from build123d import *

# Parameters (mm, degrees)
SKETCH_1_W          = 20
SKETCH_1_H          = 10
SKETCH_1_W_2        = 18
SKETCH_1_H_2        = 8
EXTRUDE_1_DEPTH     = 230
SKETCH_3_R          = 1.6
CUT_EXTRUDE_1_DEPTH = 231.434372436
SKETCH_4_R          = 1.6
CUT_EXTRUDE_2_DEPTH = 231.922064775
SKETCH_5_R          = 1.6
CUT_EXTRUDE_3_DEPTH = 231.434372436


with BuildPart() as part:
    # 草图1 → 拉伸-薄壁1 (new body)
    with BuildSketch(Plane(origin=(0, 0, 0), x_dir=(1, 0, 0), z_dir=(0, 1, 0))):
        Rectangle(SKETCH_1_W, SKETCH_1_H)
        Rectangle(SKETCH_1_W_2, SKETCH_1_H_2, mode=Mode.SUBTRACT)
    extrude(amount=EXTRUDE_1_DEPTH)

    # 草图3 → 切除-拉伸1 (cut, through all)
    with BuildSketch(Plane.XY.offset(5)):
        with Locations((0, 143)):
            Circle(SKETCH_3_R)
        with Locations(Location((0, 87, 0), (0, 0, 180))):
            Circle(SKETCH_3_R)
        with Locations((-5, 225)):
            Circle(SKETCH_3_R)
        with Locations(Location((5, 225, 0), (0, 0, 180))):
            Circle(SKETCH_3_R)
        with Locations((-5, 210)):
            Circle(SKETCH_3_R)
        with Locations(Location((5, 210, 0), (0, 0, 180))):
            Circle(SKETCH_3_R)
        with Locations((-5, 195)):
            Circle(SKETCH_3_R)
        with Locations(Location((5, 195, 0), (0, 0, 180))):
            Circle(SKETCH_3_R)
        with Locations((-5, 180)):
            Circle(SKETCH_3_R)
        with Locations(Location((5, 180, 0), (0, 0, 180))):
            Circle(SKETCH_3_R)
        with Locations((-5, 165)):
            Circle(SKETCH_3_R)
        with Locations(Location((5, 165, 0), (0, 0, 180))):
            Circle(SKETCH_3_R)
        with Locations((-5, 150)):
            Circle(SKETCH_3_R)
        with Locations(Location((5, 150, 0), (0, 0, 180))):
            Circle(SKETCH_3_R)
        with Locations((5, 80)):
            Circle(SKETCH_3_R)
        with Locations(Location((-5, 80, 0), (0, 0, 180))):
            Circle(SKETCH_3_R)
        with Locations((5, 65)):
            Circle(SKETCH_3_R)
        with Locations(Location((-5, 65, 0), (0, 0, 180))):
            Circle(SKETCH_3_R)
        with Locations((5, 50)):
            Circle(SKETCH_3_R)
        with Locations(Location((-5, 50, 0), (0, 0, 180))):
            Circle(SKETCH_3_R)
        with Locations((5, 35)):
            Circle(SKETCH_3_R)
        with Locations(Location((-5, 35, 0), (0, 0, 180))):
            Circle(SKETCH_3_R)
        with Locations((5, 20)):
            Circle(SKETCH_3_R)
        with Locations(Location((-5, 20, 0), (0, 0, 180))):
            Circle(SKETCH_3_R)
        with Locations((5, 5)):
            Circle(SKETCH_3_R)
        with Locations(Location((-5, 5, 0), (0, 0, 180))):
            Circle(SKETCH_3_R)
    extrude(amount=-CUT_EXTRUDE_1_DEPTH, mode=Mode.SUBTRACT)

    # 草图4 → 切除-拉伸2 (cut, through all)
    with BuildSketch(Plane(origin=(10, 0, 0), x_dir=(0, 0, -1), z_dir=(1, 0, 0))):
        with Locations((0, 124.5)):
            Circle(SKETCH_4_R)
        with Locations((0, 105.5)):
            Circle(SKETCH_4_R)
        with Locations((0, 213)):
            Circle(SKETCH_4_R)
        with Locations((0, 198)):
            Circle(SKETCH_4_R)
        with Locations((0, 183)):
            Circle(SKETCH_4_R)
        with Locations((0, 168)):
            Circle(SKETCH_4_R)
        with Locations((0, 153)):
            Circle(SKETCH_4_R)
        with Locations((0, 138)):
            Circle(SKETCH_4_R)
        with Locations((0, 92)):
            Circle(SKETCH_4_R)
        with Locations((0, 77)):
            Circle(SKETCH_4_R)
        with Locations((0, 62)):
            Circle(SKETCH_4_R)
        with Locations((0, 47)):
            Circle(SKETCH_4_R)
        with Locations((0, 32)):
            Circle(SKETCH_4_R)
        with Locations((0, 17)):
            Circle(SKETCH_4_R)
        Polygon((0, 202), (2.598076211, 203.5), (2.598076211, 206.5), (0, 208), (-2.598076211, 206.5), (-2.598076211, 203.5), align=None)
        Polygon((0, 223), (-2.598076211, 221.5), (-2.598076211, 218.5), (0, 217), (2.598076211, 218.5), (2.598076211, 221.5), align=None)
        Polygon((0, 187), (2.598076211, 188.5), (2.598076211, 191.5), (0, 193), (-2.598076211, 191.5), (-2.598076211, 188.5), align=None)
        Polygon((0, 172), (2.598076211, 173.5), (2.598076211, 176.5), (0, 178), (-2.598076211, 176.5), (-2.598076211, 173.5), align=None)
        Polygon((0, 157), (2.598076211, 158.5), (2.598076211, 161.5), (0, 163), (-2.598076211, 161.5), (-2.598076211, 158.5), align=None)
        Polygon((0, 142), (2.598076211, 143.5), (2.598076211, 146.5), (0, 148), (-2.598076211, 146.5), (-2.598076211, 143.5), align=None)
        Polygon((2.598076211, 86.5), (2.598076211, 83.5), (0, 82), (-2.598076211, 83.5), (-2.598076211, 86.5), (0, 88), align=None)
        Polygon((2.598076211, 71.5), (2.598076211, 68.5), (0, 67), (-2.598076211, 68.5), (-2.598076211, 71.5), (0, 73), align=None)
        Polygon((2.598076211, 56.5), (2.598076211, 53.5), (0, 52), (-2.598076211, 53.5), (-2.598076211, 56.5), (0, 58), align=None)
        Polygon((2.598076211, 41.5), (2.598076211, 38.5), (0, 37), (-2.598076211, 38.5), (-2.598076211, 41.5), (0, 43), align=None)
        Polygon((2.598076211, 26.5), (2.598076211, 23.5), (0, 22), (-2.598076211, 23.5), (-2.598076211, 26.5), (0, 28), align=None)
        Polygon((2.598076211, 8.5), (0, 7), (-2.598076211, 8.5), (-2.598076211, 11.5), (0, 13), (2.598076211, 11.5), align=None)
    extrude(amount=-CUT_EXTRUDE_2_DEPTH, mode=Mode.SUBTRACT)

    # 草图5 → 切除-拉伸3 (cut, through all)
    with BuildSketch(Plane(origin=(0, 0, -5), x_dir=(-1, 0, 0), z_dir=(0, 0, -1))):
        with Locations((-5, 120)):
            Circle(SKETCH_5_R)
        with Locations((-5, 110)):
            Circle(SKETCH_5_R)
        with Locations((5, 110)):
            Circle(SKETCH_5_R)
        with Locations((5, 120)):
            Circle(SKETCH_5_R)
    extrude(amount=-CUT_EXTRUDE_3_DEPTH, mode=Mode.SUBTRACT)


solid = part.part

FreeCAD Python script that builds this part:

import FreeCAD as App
import Part
import Sketcher

V = App.Vector
Q = App.Units.Quantity

doc = App.newDocument("Part")
body = doc.addObject("PartDesign::Body", "Body")

# Sketch on XZ plane
sketch1 = doc.addObject("Sketcher::SketchObject", "Sketch")
body.addObject(sketch1)
sketch1.AttachmentSupport = (doc.XZ_Plane, [""])
sketch1.MapMode = "FlatFace"
sketch1.addGeometry(Part.LineSegment(V(-10, -5, 0), V(-10, 5, 0)), False)
sketch1.addGeometry(Part.LineSegment(V(-10, 5, 0), V(10, 5, 0)), False)
sketch1.addGeometry(Part.LineSegment(V(10, 5, 0), V(10, -5, 0)), False)
sketch1.addGeometry(Part.LineSegment(V(10, -5, 0), V(-10, -5, 0)), False)
sketch1.addGeometry(Part.LineSegment(V(9, 4, 0), V(-9, 4, 0)), False)
sketch1.addGeometry(Part.LineSegment(V(-9, 4, 0), V(-9, -4, 0)), False)
sketch1.addGeometry(Part.LineSegment(V(-9, -4, 0), V(9, -4, 0)), False)
sketch1.addGeometry(Part.LineSegment(V(9, -4, 0), V(9, 4, 0)), False)
sketch1.addConstraint(Sketcher.Constraint("Coincident", 0, 2, 1, 1))
sketch1.addConstraint(Sketcher.Constraint("Coincident", 1, 2, 2, 1))
sketch1.addConstraint(Sketcher.Constraint("Coincident", 2, 2, 3, 1))
sketch1.addConstraint(Sketcher.Constraint("Coincident", 3, 2, 0, 1))
sketch1.addConstraint(Sketcher.Constraint("Coincident", 4, 2, 5, 1))
sketch1.addConstraint(Sketcher.Constraint("Coincident", 5, 2, 6, 1))
sketch1.addConstraint(Sketcher.Constraint("Coincident", 6, 2, 7, 1))
sketch1.addConstraint(Sketcher.Constraint("Coincident", 7, 2, 4, 1))
sketch1.addConstraint(Sketcher.Constraint("Vertical", 0))
sketch1.addConstraint(Sketcher.Constraint("Horizontal", 1))
sketch1.addConstraint(Sketcher.Constraint("Vertical", 2))
sketch1.addConstraint(Sketcher.Constraint("Horizontal", 3))
sketch1.addConstraint(Sketcher.Constraint("Horizontal", 4))
sketch1.addConstraint(Sketcher.Constraint("Vertical", 5))
sketch1.addConstraint(Sketcher.Constraint("Horizontal", 6))
sketch1.addConstraint(Sketcher.Constraint("Vertical", 7))
sketch1.addConstraint(Sketcher.Constraint("Symmetric", 0, 2, 2, 2, -1, 1))
sketch1.addConstraint(Sketcher.Constraint("Symmetric", 4, 2, 6, 2, -1, 1))
sketch1.addConstraint(Sketcher.Constraint("DistanceX", 1, 1, 1, 2, 20.0))
sketch1.addConstraint(Sketcher.Constraint("DistanceX", 4, 2, 4, 1, 18.0))
sketch1.addConstraint(Sketcher.Constraint("DistanceY", 0, 1, 0, 2, 10.0))
sketch1.addConstraint(Sketcher.Constraint("DistanceY", 5, 2, 5, 1, 8.0))
pad1 = doc.addObject("PartDesign::Pad", "Pad")
body.addObject(pad1)
pad1.Profile = sketch1
pad1.Length = 230
pad1.Reversed = True

# Sketch on XY plane
sketch2 = doc.addObject("Sketcher::SketchObject", "Sketch001")
body.addObject(sketch2)
sketch2.AttachmentSupport = (doc.XY_Plane, [""])
sketch2.MapMode = "FlatFace"
sketch2.AttachmentOffset = App.Placement(V(0, 0, 5), App.Rotation())
sketch2.addGeometry(Part.Circle(V(0, 143, 0), V(0, 0, 1), 1.6), False)
sketch2.addGeometry(Part.Circle(V(0, 87, 0), V(0, 0, 1), 1.6), False)
sketch2.addGeometry(Part.Circle(V(-5, 225, 0), V(0, 0, 1), 1.6), False)
sketch2.addGeometry(Part.Circle(V(5, 225, 0), V(0, 0, 1), 1.6), False)
sketch2.addGeometry(Part.Circle(V(-5, 210, 0), V(0, 0, 1), 1.6), False)
sketch2.addGeometry(Part.Circle(V(5, 210, 0), V(0, 0, 1), 1.6), False)
sketch2.addGeometry(Part.Circle(V(-5, 195, 0), V(0, 0, 1), 1.6), False)
sketch2.addGeometry(Part.Circle(V(5, 195, 0), V(0, 0, 1), 1.6), False)
sketch2.addGeometry(Part.Circle(V(-5, 180, 0), V(0, 0, 1), 1.6), False)
sketch2.addGeometry(Part.Circle(V(5, 180, 0), V(0, 0, 1), 1.6), False)
sketch2.addGeometry(Part.Circle(V(-5, 165, 0), V(0, 0, 1), 1.6), False)
sketch2.addGeometry(Part.Circle(V(5, 165, 0), V(0, 0, 1), 1.6), False)
sketch2.addGeometry(Part.Circle(V(-5, 150, 0), V(0, 0, 1), 1.6), False)
sketch2.addGeometry(Part.Circle(V(5, 150, 0), V(0, 0, 1), 1.6), False)
sketch2.addGeometry(Part.Circle(V(5, 80, 0), V(0, 0, 1), 1.6), False)
sketch2.addGeometry(Part.Circle(V(-5, 80, 0), V(0, 0, 1), 1.6), False)
sketch2.addGeometry(Part.Circle(V(5, 65, 0), V(0, 0, 1), 1.6), False)
sketch2.addGeometry(Part.Circle(V(-5, 65, 0), V(0, 0, 1), 1.6), False)
sketch2.addGeometry(Part.Circle(V(5, 50, 0), V(0, 0, 1), 1.6), False)
sketch2.addGeometry(Part.Circle(V(-5, 50, 0), V(0, 0, 1), 1.6), False)
sketch2.addGeometry(Part.Circle(V(5, 35, 0), V(0, 0, 1), 1.6), False)
sketch2.addGeometry(Part.Circle(V(-5, 35, 0), V(0, 0, 1), 1.6), False)
sketch2.addGeometry(Part.Circle(V(5, 20, 0), V(0, 0, 1), 1.6), False)
sketch2.addGeometry(Part.Circle(V(-5, 20, 0), V(0, 0, 1), 1.6), False)
sketch2.addGeometry(Part.Circle(V(5, 5, 0), V(0, 0, 1), 1.6), False)
sketch2.addGeometry(Part.Circle(V(-5, 5, 0), V(0, 0, 1), 1.6), False)
sketch2.addConstraint(Sketcher.Constraint("Equal", 0, 1))
sketch2.addConstraint(Sketcher.Constraint("Equal", 1, 2))
sketch2.addConstraint(Sketcher.Constraint("Equal", 2, 3))
sketch2.addConstraint(Sketcher.Constraint("Equal", 3, 4))
sketch2.addConstraint(Sketcher.Constraint("Equal", 4, 5))
sketch2.addConstraint(Sketcher.Constraint("Equal", 5, 6))
sketch2.addConstraint(Sketcher.Constraint("Equal", 6, 7))
sketch2.addConstraint(Sketcher.Constraint("Equal", 7, 8))
sketch2.addConstraint(Sketcher.Constraint("Equal", 8, 9))
sketch2.addConstraint(Sketcher.Constraint("Equal", 9, 10))
sketch2.addConstraint(Sketcher.Constraint("Equal", 10, 11))
sketch2.addConstraint(Sketcher.Constraint("Equal", 11, 12))
sketch2.addConstraint(Sketcher.Constraint("Equal", 12, 13))
sketch2.addConstraint(Sketcher.Constraint("Equal", 13, 14))
sketch2.addConstraint(Sketcher.Constraint("Equal", 14, 15))
sketch2.addConstraint(Sketcher.Constraint("Equal", 15, 16))
sketch2.addConstraint(Sketcher.Constraint("Equal", 16, 17))
sketch2.addConstraint(Sketcher.Constraint("Equal", 17, 18))
sketch2.addConstraint(Sketcher.Constraint("Equal", 18, 19))
sketch2.addConstraint(Sketcher.Constraint("Equal", 19, 20))
sketch2.addConstraint(Sketcher.Constraint("Equal", 20, 21))
sketch2.addConstraint(Sketcher.Constraint("Equal", 21, 22))
sketch2.addConstraint(Sketcher.Constraint("Equal", 22, 23))
sketch2.addConstraint(Sketcher.Constraint("Equal", 23, 24))
sketch2.addConstraint(Sketcher.Constraint("Equal", 24, 25))
sketch2.addConstraint(Sketcher.Constraint("Symmetric", 2, 3, 3, 3, -2))
sketch2.addConstraint(Sketcher.Constraint("Symmetric", 4, 3, 5, 3, -2))
sketch2.addConstraint(Sketcher.Constraint("Symmetric", 6, 3, 7, 3, -2))
sketch2.addConstraint(Sketcher.Constraint("Symmetric", 8, 3, 9, 3, -2))
sketch2.addConstraint(Sketcher.Constraint("Symmetric", 10, 3, 11, 3, -2))
sketch2.addConstraint(Sketcher.Constraint("Symmetric", 12, 3, 13, 3, -2))
sketch2.addConstraint(Sketcher.Constraint("Symmetric", 14, 3, 15, 3, -2))
sketch2.addConstraint(Sketcher.Constraint("Symmetric", 16, 3, 17, 3, -2))
sketch2.addConstraint(Sketcher.Constraint("Symmetric", 18, 3, 19, 3, -2))
sketch2.addConstraint(Sketcher.Constraint("Symmetric", 20, 3, 21, 3, -2))
sketch2.addConstraint(Sketcher.Constraint("Symmetric", 22, 3, 23, 3, -2))
sketch2.addConstraint(Sketcher.Constraint("Symmetric", 24, 3, 25, 3, -2))
sketch2.addConstraint(Sketcher.Constraint("PointOnObject", 0, 3, -2))
sketch2.addConstraint(Sketcher.Constraint("PointOnObject", 1, 3, -2))
sketch2.addConstraint(Sketcher.Constraint("Vertical", 2, 3, 4, 3))
sketch2.addConstraint(Sketcher.Constraint("Vertical", 4, 3, 6, 3))
sketch2.addConstraint(Sketcher.Constraint("Vertical", 6, 3, 8, 3))
sketch2.addConstraint(Sketcher.Constraint("Vertical", 8, 3, 10, 3))
sketch2.addConstraint(Sketcher.Constraint("Vertical", 10, 3, 12, 3))
sketch2.addConstraint(Sketcher.Constraint("Vertical", 13, 3, 14, 3))
sketch2.addConstraint(Sketcher.Constraint("Vertical", 14, 3, 16, 3))
sketch2.addConstraint(Sketcher.Constraint("Vertical", 16, 3, 18, 3))
sketch2.addConstraint(Sketcher.Constraint("Vertical", 18, 3, 20, 3))
sketch2.addConstraint(Sketcher.Constraint("Vertical", 20, 3, 22, 3))
sketch2.addConstraint(Sketcher.Constraint("Vertical", 22, 3, 24, 3))
sketch2.addConstraint(Sketcher.Constraint("Diameter", 0, 3.2))
sketch2.addConstraint(Sketcher.Constraint("DistanceY", -1, 1, 0, 3, 143.0))
sketch2.addConstraint(Sketcher.Constraint("DistanceY", -1, 1, 1, 3, 87.0))
sketch2.addConstraint(Sketcher.Constraint("DistanceX", 2, 3, -1, 1, 5.0))
sketch2.addConstraint(Sketcher.Constraint("DistanceY", -1, 1, 2, 3, 225.0))
sketch2.addConstraint(Sketcher.Constraint("DistanceY", -1, 1, 4, 3, 210.0))
sketch2.addConstraint(Sketcher.Constraint("DistanceY", -1, 1, 6, 3, 195.0))
sketch2.addConstraint(Sketcher.Constraint("DistanceY", -1, 1, 8, 3, 180.0))
sketch2.addConstraint(Sketcher.Constraint("DistanceY", -1, 1, 10, 3, 165.0))
sketch2.addConstraint(Sketcher.Constraint("DistanceY", -1, 1, 12, 3, 150.0))
sketch2.addConstraint(Sketcher.Constraint("DistanceY", -1, 1, 14, 3, 80.0))
sketch2.addConstraint(Sketcher.Constraint("DistanceY", -1, 1, 16, 3, 65.0))
sketch2.addConstraint(Sketcher.Constraint("DistanceY", -1, 1, 18, 3, 50.0))
sketch2.addConstraint(Sketcher.Constraint("DistanceY", -1, 1, 20, 3, 35.0))
sketch2.addConstraint(Sketcher.Constraint("DistanceY", -1, 1, 22, 3, 20.0))
sketch2.addConstraint(Sketcher.Constraint("DistanceY", -1, 1, 24, 3, 5.0))
pocket1 = doc.addObject("PartDesign::Pocket", "Pocket")
body.addObject(pocket1)
pocket1.Profile = sketch2
pocket1.Type = "ThroughAll"

# Sketch on YZ plane
sketch3 = doc.addObject("Sketcher::SketchObject", "Sketch002")
body.addObject(sketch3)
sketch3.AttachmentSupport = (doc.YZ_Plane, [""])
sketch3.MapMode = "FlatFace"
sketch3.AttachmentOffset = App.Placement(V(0, 0, 10), App.Rotation())
sketch3.addGeometry(Part.Circle(V(124.5, 0, 0), V(0, 0, 1), 1.6), False)
sketch3.addGeometry(Part.Circle(V(105.5, 0, 0), V(0, 0, 1), 1.6), False)
sketch3.addGeometry(Part.Circle(V(213, 0, 0), V(0, 0, 1), 1.6), False)
sketch3.addGeometry(Part.Circle(V(198, 0, 0), V(0, 0, 1), 1.6), False)
sketch3.addGeometry(Part.Circle(V(183, 0, 0), V(0, 0, 1), 1.6), False)
sketch3.addGeometry(Part.Circle(V(168, 0, 0), V(0, 0, 1), 1.6), False)
sketch3.addGeometry(Part.Circle(V(153, 0, 0), V(0, 0, 1), 1.6), False)
sketch3.addGeometry(Part.Circle(V(138, 0, 0), V(0, 0, 1), 1.6), False)
sketch3.addGeometry(Part.Circle(V(92, 0, 0), V(0, 0, 1), 1.6), False)
sketch3.addGeometry(Part.Circle(V(77, 0, 0), V(0, 0, 1), 1.6), False)
sketch3.addGeometry(Part.Circle(V(62, 0, 0), V(0, 0, 1), 1.6), False)
sketch3.addGeometry(Part.Circle(V(47, 0, 0), V(0, 0, 1), 1.6), False)
sketch3.addGeometry(Part.Circle(V(32, 0, 0), V(0, 0, 1), 1.6), False)
sketch3.addGeometry(Part.Circle(V(17, 0, 0), V(0, 0, 1), 1.6), False)
sketch3.addGeometry(Part.LineSegment(V(202, 0, 0), V(203.5, -2.598076, 0)), False)
sketch3.addGeometry(Part.LineSegment(V(203.5, -2.598076, 0), V(206.5, -2.598076, 0)), False)
sketch3.addGeometry(Part.LineSegment(V(206.5, -2.598076, 0), V(208, 0, 0)), False)
sketch3.addGeometry(Part.LineSegment(V(208, 0, 0), V(206.5, 2.598076, 0)), False)
sketch3.addGeometry(Part.LineSegment(V(206.5, 2.598076, 0), V(203.5, 2.598076, 0)), False)
sketch3.addGeometry(Part.LineSegment(V(203.5, 2.598076, 0), V(202, 0, 0)), False)
sketch3.addGeometry(Part.LineSegment(V(223, 0, 0), V(221.5, 2.598076, 0)), False)
sketch3.addGeometry(Part.LineSegment(V(221.5, 2.598076, 0), V(218.5, 2.598076, 0)), False)
sketch3.addGeometry(Part.LineSegment(V(218.5, 2.598076, 0), V(217, 0, 0)), False)
sketch3.addGeometry(Part.LineSegment(V(217, 0, 0), V(218.5, -2.598076, 0)), False)
sketch3.addGeometry(Part.LineSegment(V(218.5, -2.598076, 0), V(221.5, -2.598076, 0)), False)
sketch3.addGeometry(Part.LineSegment(V(221.5, -2.598076, 0), V(223, 0, 0)), False)
sketch3.addGeometry(Part.LineSegment(V(187, 0, 0), V(188.5, -2.598076, 0)), False)
sketch3.addGeometry(Part.LineSegment(V(188.5, -2.598076, 0), V(191.5, -2.598076, 0)), False)
sketch3.addGeometry(Part.LineSegment(V(191.5, -2.598076, 0), V(193, 0, 0)), False)
sketch3.addGeometry(Part.LineSegment(V(193, 0, 0), V(191.5, 2.598076, 0)), False)
sketch3.addGeometry(Part.LineSegment(V(191.5, 2.598076, 0), V(188.5, 2.598076, 0)), False)
sketch3.addGeometry(Part.LineSegment(V(188.5, 2.598076, 0), V(187, 0, 0)), False)
sketch3.addGeometry(Part.LineSegment(V(172, 0, 0), V(173.5, -2.598076, 0)), False)
sketch3.addGeometry(Part.LineSegment(V(173.5, -2.598076, 0), V(176.5, -2.598076, 0)), False)
sketch3.addGeometry(Part.LineSegment(V(176.5, -2.598076, 0), V(178, 0, 0)), False)
sketch3.addGeometry(Part.LineSegment(V(178, 0, 0), V(176.5, 2.598076, 0)), False)
sketch3.addGeometry(Part.LineSegment(V(176.5, 2.598076, 0), V(173.5, 2.598076, 0)), False)
sketch3.addGeometry(Part.LineSegment(V(173.5, 2.598076, 0), V(172, 0, 0)), False)
sketch3.addGeometry(Part.LineSegment(V(157, 0, 0), V(158.5, -2.598076, 0)), False)
sketch3.addGeometry(Part.LineSegment(V(158.5, -2.598076, 0), V(161.5, -2.598076, 0)), False)
sketch3.addGeometry(Part.LineSegment(V(161.5, -2.598076, 0), V(163, 0, 0)), False)
sketch3.addGeometry(Part.LineSegment(V(163, 0, 0), V(161.5, 2.598076, 0)), False)
sketch3.addGeometry(Part.LineSegment(V(161.5, 2.598076, 0), V(158.5, 2.598076, 0)), False)
sketch3.addGeometry(Part.LineSegment(V(158.5, 2.598076, 0), V(157, 0, 0)), False)
sketch3.addGeometry(Part.LineSegment(V(142, 0, 0), V(143.5, -2.598076, 0)), False)
sketch3.addGeometry(Part.LineSegment(V(143.5, -2.598076, 0), V(146.5, -2.598076, 0)), False)
sketch3.addGeometry(Part.LineSegment(V(146.5, -2.598076, 0), V(148, 0, 0)), False)
sketch3.addGeometry(Part.LineSegment(V(148, 0, 0), V(146.5, 2.598076, 0)), False)
sketch3.addGeometry(Part.LineSegment(V(146.5, 2.598076, 0), V(143.5, 2.598076, 0)), False)
sketch3.addGeometry(Part.LineSegment(V(143.5, 2.598076, 0), V(142, 0, 0)), False)
sketch3.addGeometry(Part.LineSegment(V(83.5, -2.598076, 0), V(86.5, -2.598076, 0)), False)
sketch3.addGeometry(Part.LineSegment(V(86.5, -2.598076, 0), V(88, 0, 0)), False)
sketch3.addGeometry(Part.LineSegment(V(88, 0, 0), V(86.5, 2.598076, 0)), False)
sketch3.addGeometry(Part.LineSegment(V(86.5, 2.598076, 0), V(83.5, 2.598076, 0)), False)
sketch3.addGeometry(Part.LineSegment(V(83.5, 2.598076, 0), V(82, 0, 0)), False)
sketch3.addGeometry(Part.LineSegment(V(82, 0, 0), V(83.5, -2.598076, 0)), False)
sketch3.addGeometry(Part.LineSegment(V(68.5, -2.598076, 0), V(71.5, -2.598076, 0)), False)
sketch3.addGeometry(Part.LineSegment(V(71.5, -2.598076, 0), V(73, 0, 0)), False)
sketch3.addGeometry(Part.LineSegment(V(73, 0, 0), V(71.5, 2.598076, 0)), False)
sketch3.addGeometry(Part.LineSegment(V(71.5, 2.598076, 0), V(68.5, 2.598076, 0)), False)
sketch3.addGeometry(Part.LineSegment(V(68.5, 2.598076, 0), V(67, 0, 0)), False)
sketch3.addGeometry(Part.LineSegment(V(67, 0, 0), V(68.5, -2.598076, 0)), False)
sketch3.addGeometry(Part.LineSegment(V(53.5, -2.598076, 0), V(56.5, -2.598076, 0)), False)
sketch3.addGeometry(Part.LineSegment(V(56.5, -2.598076, 0), V(58, 0, 0)), False)
sketch3.addGeometry(Part.LineSegment(V(58, 0, 0), V(56.5, 2.598076, 0)), False)
sketch3.addGeometry(Part.LineSegment(V(56.5, 2.598076, 0), V(53.5, 2.598076, 0)), False)
sketch3.addGeometry(Part.LineSegment(V(53.5, 2.598076, 0), V(52, 0, 0)), False)
sketch3.addGeometry(Part.LineSegment(V(52, 0, 0), V(53.5, -2.598076, 0)), False)
sketch3.addGeometry(Part.LineSegment(V(38.5, -2.598076, 0), V(41.5, -2.598076, 0)), False)
sketch3.addGeometry(Part.LineSegment(V(41.5, -2.598076, 0), V(43, 0, 0)), False)
sketch3.addGeometry(Part.LineSegment(V(43, 0, 0), V(41.5, 2.598076, 0)), False)
sketch3.addGeometry(Part.LineSegment(V(41.5, 2.598076, 0), V(38.5, 2.598076, 0)), False)
sketch3.addGeometry(Part.LineSegment(V(38.5, 2.598076, 0), V(37, 0, 0)), False)
sketch3.addGeometry(Part.LineSegment(V(37, 0, 0), V(38.5, -2.598076, 0)), False)
sketch3.addGeometry(Part.LineSegment(V(23.5, -2.598076, 0), V(26.5, -2.598076, 0)), False)
sketch3.addGeometry(Part.LineSegment(V(26.5, -2.598076, 0), V(28, 0, 0)), False)
sketch3.addGeometry(Part.LineSegment(V(28, 0, 0), V(26.5, 2.598076, 0)), False)
sketch3.addGeometry(Part.LineSegment(V(26.5, 2.598076, 0), V(23.5, 2.598076, 0)), False)
sketch3.addGeometry(Part.LineSegment(V(23.5, 2.598076, 0), V(22, 0, 0)), False)
sketch3.addGeometry(Part.LineSegment(V(22, 0, 0), V(23.5, -2.598076, 0)), False)
sketch3.addGeometry(Part.LineSegment(V(7, 0, 0), V(8.5, -2.598076, 0)), False)
sketch3.addGeometry(Part.LineSegment(V(8.5, -2.598076, 0), V(11.5, -2.598076, 0)), False)
sketch3.addGeometry(Part.LineSegment(V(11.5, -2.598076, 0), V(13, 0, 0)), False)
sketch3.addGeometry(Part.LineSegment(V(13, 0, 0), V(11.5, 2.598076, 0)), False)
sketch3.addGeometry(Part.LineSegment(V(11.5, 2.598076, 0), V(8.5, 2.598076, 0)), False)
sketch3.addGeometry(Part.LineSegment(V(8.5, 2.598076, 0), V(7, 0, 0)), False)
sketch3.addConstraint(Sketcher.Constraint("Coincident", 14, 2, 15, 1))
sketch3.addConstraint(Sketcher.Constraint("Coincident", 15, 2, 16, 1))
sketch3.addConstraint(Sketcher.Constraint("Coincident", 16, 2, 17, 1))
sketch3.addConstraint(Sketcher.Constraint("Coincident", 17, 2, 18, 1))
sketch3.addConstraint(Sketcher.Constraint("Coincident", 18, 2, 19, 1))
sketch3.addConstraint(Sketcher.Constraint("Coincident", 19, 2, 14, 1))
sketch3.addConstraint(Sketcher.Constraint("Coincident", 20, 2, 21, 1))
sketch3.addConstraint(Sketcher.Constraint("Coincident", 21, 2, 22, 1))
sketch3.addConstraint(Sketcher.Constraint("Coincident", 22, 2, 23, 1))
sketch3.addConstraint(Sketcher.Constraint("Coincident", 23, 2, 24, 1))
sketch3.addConstraint(Sketcher.Constraint("Coincident", 24, 2, 25, 1))
sketch3.addConstraint(Sketcher.Constraint("Coincident", 25, 2, 20, 1))
sketch3.addConstraint(Sketcher.Constraint("Coincident", 26, 2, 27, 1))
sketch3.addConstraint(Sketcher.Constraint("Coincident", 27, 2, 28, 1))
sketch3.addConstraint(Sketcher.Constraint("Coincident", 28, 2, 29, 1))
sketch3.addConstraint(Sketcher.Constraint("Coincident", 29, 2, 30, 1))
sketch3.addConstraint(Sketcher.Constraint("Coincident", 30, 2, 31, 1))
sketch3.addConstraint(Sketcher.Constraint("Coincident", 31, 2, 26, 1))
sketch3.addConstraint(Sketcher.Constraint("Coincident", 32, 2, 33, 1))
sketch3.addConstraint(Sketcher.Constraint("Coincident", 33, 2, 34, 1))
sketch3.addConstraint(Sketcher.Constraint("Coincident", 34, 2, 35, 1))
sketch3.addConstraint(Sketcher.Constraint("Coincident", 35, 2, 36, 1))
sketch3.addConstraint(Sketcher.Constraint("Coincident", 36, 2, 37, 1))
sketch3.addConstraint(Sketcher.Constraint("Coincident", 37, 2, 32, 1))
sketch3.addConstraint(Sketcher.Constraint("Coincident", 38, 2, 39, 1))
sketch3.addConstraint(Sketcher.Constraint("Coincident", 39, 2, 40, 1))
sketch3.addConstraint(Sketcher.Constraint("Coincident", 40, 2, 41, 1))
sketch3.addConstraint(Sketcher.Constraint("Coincident", 41, 2, 42, 1))
sketch3.addConstraint(Sketcher.Constraint("Coincident", 42, 2, 43, 1))
sketch3.addConstraint(Sketcher.Constraint("Coincident", 43, 2, 38, 1))
sketch3.addConstraint(Sketcher.Constraint("Coincident", 44, 2, 45, 1))
sketch3.addConstraint(Sketcher.Constraint("Coincident", 45, 2, 46, 1))
sketch3.addConstraint(Sketcher.Constraint("Coincident", 46, 2, 47, 1))
sketch3.addConstraint(Sketcher.Constraint("Coincident", 47, 2, 48, 1))
sketch3.addConstraint(Sketcher.Constraint("Coincident", 48, 2, 49, 1))
sketch3.addConstraint(Sketcher.Constraint("Coincident", 49, 2, 44, 1))
sketch3.addConstraint(Sketcher.Constraint("Coincident", 50, 2, 51, 1))
sketch3.addConstraint(Sketcher.Constraint("Coincident", 51, 2, 52, 1))
sketch3.addConstraint(Sketcher.Constraint("Coincident", 52, 2, 53, 1))
sketch3.addConstraint(Sketcher.Constraint("Coincident", 53, 2, 54, 1))
sketch3.addConstraint(Sketcher.Constraint("Coincident", 54, 2, 55, 1))
sketch3.addConstraint(Sketcher.Constraint("Coincident", 55, 2, 50, 1))
sketch3.addConstraint(Sketcher.Constraint("Coincident", 56, 2, 57, 1))
sketch3.addConstraint(Sketcher.Constraint("Coincident", 57, 2, 58, 1))
sketch3.addConstraint(Sketcher.Constraint("Coincident", 58, 2, 59, 1))
sketch3.addConstraint(Sketcher.Constraint("Coincident", 59, 2, 60, 1))
sketch3.addConstraint(Sketcher.Constraint("Coincident", 60, 2, 61, 1))
sketch3.addConstraint(Sketcher.Constraint("Coincident", 61, 2, 56, 1))
sketch3.addConstraint(Sketcher.Constraint("Coincident", 62, 2, 63, 1))
sketch3.addConstraint(Sketcher.Constraint("Coincident", 63, 2, 64, 1))
sketch3.addConstraint(Sketcher.Constraint("Coincident", 64, 2, 65, 1))
sketch3.addConstraint(Sketcher.Constraint("Coincident", 65, 2, 66, 1))
sketch3.addConstraint(Sketcher.Constraint("Coincident", 66, 2, 67, 1))
sketch3.addConstraint(Sketcher.Constraint("Coincident", 67, 2, 62, 1))
sketch3.addConstraint(Sketcher.Constraint("Coincident", 68, 2, 69, 1))
sketch3.addConstraint(Sketcher.Constraint("Coincident", 69, 2, 70, 1))
sketch3.addConstraint(Sketcher.Constraint("Coincident", 70, 2, 71, 1))
sketch3.addConstraint(Sketcher.Constraint("Coincident", 71, 2, 72, 1))
sketch3.addConstraint(Sketcher.Constraint("Coincident", 72, 2, 73, 1))
sketch3.addConstraint(Sketcher.Constraint("Coincident", 73, 2, 68, 1))
sketch3.addConstraint(Sketcher.Constraint("Coincident", 74, 2, 75, 1))
sketch3.addConstraint(Sketcher.Constraint("Coincident", 75, 2, 76, 1))
sketch3.addConstraint(Sketcher.Constraint("Coincident", 76, 2, 77, 1))
sketch3.addConstraint(Sketcher.Constraint("Coincident", 77, 2, 78, 1))
sketch3.addConstraint(Sketcher.Constraint("Coincident", 78, 2, 79, 1))
sketch3.addConstraint(Sketcher.Constraint("Coincident", 79, 2, 74, 1))
sketch3.addConstraint(Sketcher.Constraint("Coincident", 80, 2, 81, 1))
sketch3.addConstraint(Sketcher.Constraint("Coincident", 81, 2, 82, 1))
sketch3.addConstraint(Sketcher.Constraint("Coincident", 82, 2, 83, 1))
sketch3.addConstraint(Sketcher.Constraint("Coincident", 83, 2, 84, 1))
sketch3.addConstraint(Sketcher.Constraint("Coincident", 84, 2, 85, 1))
sketch3.addConstraint(Sketcher.Constraint("Coincident", 85, 2, 80, 1))
sketch3.addConstraint(Sketcher.Constraint("Horizontal", 15))
sketch3.addConstraint(Sketcher.Constraint("Horizontal", 18))
sketch3.addConstraint(Sketcher.Constraint("Horizontal", 21))
sketch3.addConstraint(Sketcher.Constraint("Horizontal", 24))
sketch3.addConstraint(Sketcher.Constraint("Horizontal", 27))
sketch3.addConstraint(Sketcher.Constraint("Horizontal", 30))
sketch3.addConstraint(Sketcher.Constraint("Horizontal", 33))
sketch3.addConstraint(Sketcher.Constraint("Horizontal", 36))
sketch3.addConstraint(Sketcher.Constraint("Horizontal", 39))
sketch3.addConstraint(Sketcher.Constraint("Horizontal", 42))
sketch3.addConstraint(Sketcher.Constraint("Horizontal", 45))
sketch3.addConstraint(Sketcher.Constraint("Horizontal", 48))
sketch3.addConstraint(Sketcher.Constraint("Horizontal", 50))
sketch3.addConstraint(Sketcher.Constraint("Horizontal", 53))
sketch3.addConstraint(Sketcher.Constraint("Horizontal", 56))
sketch3.addConstraint(Sketcher.Constraint("Horizontal", 59))
sketch3.addConstraint(Sketcher.Constraint("Horizontal", 62))
sketch3.addConstraint(Sketcher.Constraint("Horizontal", 65))
sketch3.addConstraint(Sketcher.Constraint("Horizontal", 68))
sketch3.addConstraint(Sketcher.Constraint("Horizontal", 71))
sketch3.addConstraint(Sketcher.Constraint("Horizontal", 74))
sketch3.addConstraint(Sketcher.Constraint("Horizontal", 77))
sketch3.addConstraint(Sketcher.Constraint("Horizontal", 81))
sketch3.addConstraint(Sketcher.Constraint("Horizontal", 84))
sketch3.addConstraint(Sketcher.Constraint("Equal", 0, 1))
sketch3.addConstraint(Sketcher.Constraint("Equal", 1, 2))
sketch3.addConstraint(Sketcher.Constraint("Equal", 2, 3))
sketch3.addConstraint(Sketcher.Constraint("Equal", 3, 4))
sketch3.addConstraint(Sketcher.Constraint("Equal", 4, 5))
sketch3.addConstraint(Sketcher.Constraint("Equal", 5, 6))
sketch3.addConstraint(Sketcher.Constraint("Equal", 6, 7))
sketch3.addConstraint(Sketcher.Constraint("Equal", 7, 8))
sketch3.addConstraint(Sketcher.Constraint("Equal", 8, 9))
sketch3.addConstraint(Sketcher.Constraint("Equal", 9, 10))
sketch3.addConstraint(Sketcher.Constraint("Equal", 10, 11))
sketch3.addConstraint(Sketcher.Constraint("Equal", 11, 12))
sketch3.addConstraint(Sketcher.Constraint("Equal", 12, 13))
sketch3.addConstraint(Sketcher.Constraint("Symmetric", 15, 2, 17, 2, -1))
sketch3.addConstraint(Sketcher.Constraint("Symmetric", 21, 2, 23, 2, -1))
sketch3.addConstraint(Sketcher.Constraint("Symmetric", 27, 2, 29, 2, -1))
sketch3.addConstraint(Sketcher.Constraint("Symmetric", 33, 2, 35, 2, -1))
sketch3.addConstraint(Sketcher.Constraint("Symmetric", 39, 2, 41, 2, -1))
sketch3.addConstraint(Sketcher.Constraint("Symmetric", 45, 2, 47, 2, -1))
sketch3.addConstraint(Sketcher.Constraint("Symmetric", 50, 2, 52, 2, -1))
sketch3.addConstraint(Sketcher.Constraint("Symmetric", 56, 2, 58, 2, -1))
sketch3.addConstraint(Sketcher.Constraint("Symmetric", 62, 2, 64, 2, -1))
sketch3.addConstraint(Sketcher.Constraint("Symmetric", 68, 2, 70, 2, -1))
sketch3.addConstraint(Sketcher.Constraint("Symmetric", 74, 2, 76, 2, -1))
sketch3.addConstraint(Sketcher.Constraint("Symmetric", 81, 2, 83, 2, -1))
sketch3.addConstraint(Sketcher.Constraint("PointOnObject", 0, 3, -1))
sketch3.addConstraint(Sketcher.Constraint("PointOnObject", 1, 3, -1))
sketch3.addConstraint(Sketcher.Constraint("PointOnObject", 2, 3, -1))
sketch3.addConstraint(Sketcher.Constraint("PointOnObject", 3, 3, -1))
sketch3.addConstraint(Sketcher.Constraint("PointOnObject", 4, 3, -1))
sketch3.addConstraint(Sketcher.Constraint("PointOnObject", 5, 3, -1))
sketch3.addConstraint(Sketcher.Constraint("PointOnObject", 6, 3, -1))
sketch3.addConstraint(Sketcher.Constraint("PointOnObject", 7, 3, -1))
sketch3.addConstraint(Sketcher.Constraint("PointOnObject", 8, 3, -1))
sketch3.addConstraint(Sketcher.Constraint("PointOnObject", 9, 3, -1))
sketch3.addConstraint(Sketcher.Constraint("PointOnObject", 10, 3, -1))
sketch3.addConstraint(Sketcher.Constraint("PointOnObject", 11, 3, -1))
sketch3.addConstraint(Sketcher.Constraint("PointOnObject", 12, 3, -1))
sketch3.addConstraint(Sketcher.Constraint("PointOnObject", 13, 3, -1))
sketch3.addConstraint(Sketcher.Constraint("PointOnObject", 16, 2, -1))
sketch3.addConstraint(Sketcher.Constraint("PointOnObject", 19, 2, -1))
sketch3.addConstraint(Sketcher.Constraint("PointOnObject", 22, 2, -1))
sketch3.addConstraint(Sketcher.Constraint("PointOnObject", 25, 2, -1))
sketch3.addConstraint(Sketcher.Constraint("PointOnObject", 28, 2, -1))
sketch3.addConstraint(Sketcher.Constraint("PointOnObject", 31, 2, -1))
sketch3.addConstraint(Sketcher.Constraint("PointOnObject", 34, 2, -1))
sketch3.addConstraint(Sketcher.Constraint("PointOnObject", 37, 2, -1))
sketch3.addConstraint(Sketcher.Constraint("PointOnObject", 40, 2, -1))
sketch3.addConstraint(Sketcher.Constraint("PointOnObject", 43, 2, -1))
sketch3.addConstraint(Sketcher.Constraint("PointOnObject", 46, 2, -1))
sketch3.addConstraint(Sketcher.Constraint("PointOnObject", 49, 2, -1))
sketch3.addConstraint(Sketcher.Constraint("PointOnObject", 51, 2, -1))
sketch3.addConstraint(Sketcher.Constraint("PointOnObject", 54, 2, -1))
sketch3.addConstraint(Sketcher.Constraint("PointOnObject", 57, 2, -1))
sketch3.addConstraint(Sketcher.Constraint("PointOnObject", 60, 2, -1))
sketch3.addConstraint(Sketcher.Constraint("PointOnObject", 63, 2, -1))
sketch3.addConstraint(Sketcher.Constraint("PointOnObject", 66, 2, -1))
sketch3.addConstraint(Sketcher.Constraint("PointOnObject", 69, 2, -1))
sketch3.addConstraint(Sketcher.Constraint("PointOnObject", 72, 2, -1))
sketch3.addConstraint(Sketcher.Constraint("PointOnObject", 75, 2, -1))
sketch3.addConstraint(Sketcher.Constraint("PointOnObject", 78, 2, -1))
sketch3.addConstraint(Sketcher.Constraint("PointOnObject", 82, 2, -1))
sketch3.addConstraint(Sketcher.Constraint("PointOnObject", 85, 2, -1))
sketch3.addConstraint(Sketcher.Constraint("Parallel", 14, 17))
sketch3.addConstraint(Sketcher.Constraint("Parallel", 16, 19))
sketch3.addConstraint(Sketcher.Constraint("Parallel", 17, 20))
sketch3.addConstraint(Sketcher.Constraint("Parallel", 19, 22))
sketch3.addConstraint(Sketcher.Constraint("Parallel", 22, 25))
sketch3.addConstraint(Sketcher.Constraint("Parallel", 23, 26))
sketch3.addConstraint(Sketcher.Constraint("Parallel", 25, 28))
sketch3.addConstraint(Sketcher.Constraint("Parallel", 28, 31))
sketch3.addConstraint(Sketcher.Constraint("Parallel", 29, 32))
sketch3.addConstraint(Sketcher.Constraint("Parallel", 31, 34))
sketch3.addConstraint(Sketcher.Constraint("Parallel", 34, 37))
sketch3.addConstraint(Sketcher.Constraint("Parallel", 35, 38))
sketch3.addConstraint(Sketcher.Constraint("Parallel", 37, 40))
sketch3.addConstraint(Sketcher.Constraint("Parallel", 40, 43))
sketch3.addConstraint(Sketcher.Constraint("Parallel", 41, 44))
sketch3.addConstraint(Sketcher.Constraint("Parallel", 43, 46))
sketch3.addConstraint(Sketcher.Constraint("Parallel", 46, 49))
sketch3.addConstraint(Sketcher.Constraint("Parallel", 49, 51))
sketch3.addConstraint(Sketcher.Constraint("Parallel", 51, 54))
sketch3.addConstraint(Sketcher.Constraint("Parallel", 52, 55))
sketch3.addConstraint(Sketcher.Constraint("Parallel", 54, 57))
sketch3.addConstraint(Sketcher.Constraint("Parallel", 57, 60))
sketch3.addConstraint(Sketcher.Constraint("Parallel", 58, 61))
sketch3.addConstraint(Sketcher.Constraint("Parallel", 60, 63))
sketch3.addConstraint(Sketcher.Constraint("Parallel", 63, 66))
sketch3.addConstraint(Sketcher.Constraint("Parallel", 64, 67))
sketch3.addConstraint(Sketcher.Constraint("Parallel", 66, 69))
sketch3.addConstraint(Sketcher.Constraint("Parallel", 69, 72))
sketch3.addConstraint(Sketcher.Constraint("Parallel", 70, 73))
sketch3.addConstraint(Sketcher.Constraint("Parallel", 72, 75))
sketch3.addConstraint(Sketcher.Constraint("Parallel", 75, 78))
sketch3.addConstraint(Sketcher.Constraint("Parallel", 76, 79))
sketch3.addConstraint(Sketcher.Constraint("Parallel", 79, 80))
sketch3.addConstraint(Sketcher.Constraint("Parallel", 78, 82))
sketch3.addConstraint(Sketcher.Constraint("Parallel", 82, 85))
sketch3.addConstraint(Sketcher.Constraint("Horizontal", 18, 2, 20, 2))
sketch3.addConstraint(Sketcher.Constraint("Horizontal", 24, 2, 26, 2))
sketch3.addConstraint(Sketcher.Constraint("Horizontal", 27, 2, 32, 2))
sketch3.addConstraint(Sketcher.Constraint("Horizontal", 33, 2, 38, 2))
sketch3.addConstraint(Sketcher.Constraint("Horizontal", 39, 2, 44, 2))
sketch3.addConstraint(Sketcher.Constraint("Horizontal", 45, 2, 50, 2))
sketch3.addConstraint(Sketcher.Constraint("Horizontal", 55, 2, 56, 2))
sketch3.addConstraint(Sketcher.Constraint("Horizontal", 61, 2, 62, 2))
sketch3.addConstraint(Sketcher.Constraint("Horizontal", 67, 2, 68, 2))
sketch3.addConstraint(Sketcher.Constraint("Horizontal", 73, 2, 74, 2))
sketch3.addConstraint(Sketcher.Constraint("Horizontal", 79, 2, 80, 2))
sketch3.addConstraint(Sketcher.Constraint("Equal", 18, 21))
sketch3.addConstraint(Sketcher.Constraint("Equal", 24, 27))
sketch3.addConstraint(Sketcher.Constraint("Equal", 30, 33))
sketch3.addConstraint(Sketcher.Constraint("Equal", 36, 39))
sketch3.addConstraint(Sketcher.Constraint("Equal", 42, 45))
sketch3.addConstraint(Sketcher.Constraint("Equal", 48, 50))
sketch3.addConstraint(Sketcher.Constraint("Equal", 53, 56))
sketch3.addConstraint(Sketcher.Constraint("Equal", 59, 62))
sketch3.addConstraint(Sketcher.Constraint("Equal", 65, 68))
sketch3.addConstraint(Sketcher.Constraint("Equal", 71, 74))
sketch3.addConstraint(Sketcher.Constraint("Equal", 77, 81))
sketch3.addConstraint(Sketcher.Constraint("Diameter", 0, 3.2))
sketch3.addConstraint(Sketcher.Constraint("DistanceX", 15, 1, 15, 2, 3.0))
sketch3.addConstraint(Sketcher.Constraint("Angle", 14, Q("-60 deg")))
sketch3.addConstraint(Sketcher.Constraint("Distance", 14, 3.0))
sketch3.addConstraint(Sketcher.Constraint("DistanceX", -1, 1, 2, 3, 213.0))
sketch3.addConstraint(Sketcher.Constraint("DistanceX", -1, 1, 3, 3, 198.0))
sketch3.addConstraint(Sketcher.Constraint("DistanceX", -1, 1, 4, 3, 183.0))
sketch3.addConstraint(Sketcher.Constraint("DistanceX", -1, 1, 5, 3, 168.0))
sketch3.addConstraint(Sketcher.Constraint("DistanceX", -1, 1, 6, 3, 153.0))
sketch3.addConstraint(Sketcher.Constraint("DistanceX", -1, 1, 7, 3, 138.0))
sketch3.addConstraint(Sketcher.Constraint("DistanceX", -1, 1, 8, 3, 92.0))
sketch3.addConstraint(Sketcher.Constraint("DistanceX", -1, 1, 9, 3, 77.0))
sketch3.addConstraint(Sketcher.Constraint("DistanceX", -1, 1, 10, 3, 62.0))
sketch3.addConstraint(Sketcher.Constraint("DistanceX", -1, 1, 11, 3, 47.0))
sketch3.addConstraint(Sketcher.Constraint("DistanceX", -1, 1, 12, 3, 32.0))
sketch3.addConstraint(Sketcher.Constraint("DistanceX", -1, 1, 13, 3, 17.0))
sketch3.addConstraint(Sketcher.Constraint("DistanceX", -1, 1, 16, 2, 208.0))
sketch3.addConstraint(Sketcher.Constraint("DistanceX", -1, 1, 22, 2, 217.0))
sketch3.addConstraint(Sketcher.Constraint("DistanceX", -1, 1, 28, 2, 193.0))
sketch3.addConstraint(Sketcher.Constraint("DistanceX", -1, 1, 34, 2, 178.0))
sketch3.addConstraint(Sketcher.Constraint("DistanceX", -1, 1, 40, 2, 163.0))
sketch3.addConstraint(Sketcher.Constraint("DistanceX", -1, 1, 46, 2, 148.0))
sketch3.addConstraint(Sketcher.Constraint("DistanceX", -1, 1, 51, 2, 88.0))
sketch3.addConstraint(Sketcher.Constraint("DistanceX", -1, 1, 57, 2, 73.0))
sketch3.addConstraint(Sketcher.Constraint("DistanceX", -1, 1, 63, 2, 58.0))
sketch3.addConstraint(Sketcher.Constraint("DistanceX", -1, 1, 69, 2, 43.0))
sketch3.addConstraint(Sketcher.Constraint("DistanceX", -1, 1, 75, 2, 28.0))
sketch3.addConstraint(Sketcher.Constraint("DistanceX", -1, 1, 82, 2, 13.0))
sketch3.addConstraint(Sketcher.Constraint("DistanceX", -1, 1, 0, 3, 124.5))
sketch3.addConstraint(Sketcher.Constraint("DistanceX", -1, 1, 1, 3, 105.5))
pocket2 = doc.addObject("PartDesign::Pocket", "Pocket001")
body.addObject(pocket2)
pocket2.Profile = sketch3
pocket2.Type = "ThroughAll"

# Sketch on XY plane
sketch4 = doc.addObject("Sketcher::SketchObject", "Sketch003")
body.addObject(sketch4)
sketch4.AttachmentSupport = (doc.XY_Plane, [""])
sketch4.MapMode = "FlatFace"
sketch4.AttachmentOffset = App.Placement(V(0, 0, -5), App.Rotation())
sketch4.addGeometry(Part.Circle(V(5, 120, 0), V(0, 0, 1), 1.6), False)
sketch4.addGeometry(Part.Circle(V(5, 110, 0), V(0, 0, 1), 1.6), False)
sketch4.addGeometry(Part.Circle(V(-5, 110, 0), V(0, 0, 1), 1.6), False)
sketch4.addGeometry(Part.Circle(V(-5, 120, 0), V(0, 0, 1), 1.6), False)
sketch4.addConstraint(Sketcher.Constraint("Equal", 0, 1))
sketch4.addConstraint(Sketcher.Constraint("Equal", 1, 2))
sketch4.addConstraint(Sketcher.Constraint("Equal", 2, 3))
sketch4.addConstraint(Sketcher.Constraint("Symmetric", 1, 3, 2, 3, -2))
sketch4.addConstraint(Sketcher.Constraint("Symmetric", 0, 3, 3, 3, -2))
sketch4.addConstraint(Sketcher.Constraint("Vertical", 0, 3, 1, 3))
sketch4.addConstraint(Sketcher.Constraint("Diameter", 0, 3.2))
sketch4.addConstraint(Sketcher.Constraint("DistanceX", -1, 1, 0, 3, 5.0))
sketch4.addConstraint(Sketcher.Constraint("DistanceY", -1, 1, 0, 3, 120.0))
sketch4.addConstraint(Sketcher.Constraint("DistanceY", -1, 1, 1, 3, 110.0))
pocket3 = doc.addObject("PartDesign::Pocket", "Pocket002")
body.addObject(pocket3)
pocket3.Profile = sketch4
pocket3.Type = "ThroughAll"
pocket3.Reversed = True

doc.recompute()
